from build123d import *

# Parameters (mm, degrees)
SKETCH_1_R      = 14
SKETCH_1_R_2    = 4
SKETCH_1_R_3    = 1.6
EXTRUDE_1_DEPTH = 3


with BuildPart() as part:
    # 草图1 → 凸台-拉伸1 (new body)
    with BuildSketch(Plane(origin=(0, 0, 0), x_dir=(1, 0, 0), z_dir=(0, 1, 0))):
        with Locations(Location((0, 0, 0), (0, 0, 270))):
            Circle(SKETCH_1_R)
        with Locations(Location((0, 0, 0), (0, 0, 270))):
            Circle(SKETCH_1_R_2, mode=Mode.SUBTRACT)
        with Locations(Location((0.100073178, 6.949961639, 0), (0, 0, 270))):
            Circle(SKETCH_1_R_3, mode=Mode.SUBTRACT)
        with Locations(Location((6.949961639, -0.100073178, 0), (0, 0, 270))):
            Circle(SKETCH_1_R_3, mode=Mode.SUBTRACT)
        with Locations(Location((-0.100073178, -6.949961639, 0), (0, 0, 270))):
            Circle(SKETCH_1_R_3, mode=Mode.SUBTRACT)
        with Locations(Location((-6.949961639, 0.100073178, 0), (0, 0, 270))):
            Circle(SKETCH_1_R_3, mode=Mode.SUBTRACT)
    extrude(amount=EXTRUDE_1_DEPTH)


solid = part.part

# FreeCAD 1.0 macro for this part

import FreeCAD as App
import Part
import Sketcher

V = App.Vector

doc = App.newDocument("Part")
body = doc.addObject("PartDesign::Body", "Body")

sketch1 = body.newObject("Sketcher::SketchObject", "Sketch")
sketch1.AttachmentSupport = (doc.getObject("XZ_Plane"), [""])
sketch1.MapMode = "FlatFace"
sketch1.addGeometry([
    Part.Circle(V(0, 0, 0), V(0, 0, 1), 14),
    Part.Circle(V(-6.9, -0.1, 0), V(0, 0, 1), 1.6),
    Part.Circle(V(-0.1, 6.9, 0), V(0, 0, 1), 1.6),
    Part.Circle(V(0.1, -6.9, 0), V(0, 0, 1), 1.6),
    Part.Circle(V(0, 0, 0), V(0, 0, 1), 4),
    Part.Circle(V(6.9, 0.1, 0), V(0, 0, 1), 1.6),
], False)
sketch1.addConstraint([
    Sketcher.Constraint("Coincident", 0, 3, -1, 1),
    Sketcher.Constraint("Coincident", 4, 3, -1, 1),
    Sketcher.Constraint("Equal", 1, 2),
    Sketcher.Constraint("Equal", 2, 3),
    Sketcher.Constraint("Equal", 3, 5),
    Sketcher.Constraint("Symmetric", 2, 3, 3, 3, -1, 1),
    Sketcher.Constraint("Symmetric", 1, 3, 5, 3, -1, 1),
    Sketcher.Constraint("Diameter", 0, 28.0),
    Sketcher.Constraint("Diameter", 4, 8.0),
    Sketcher.Constraint("Diameter", 1, 3.2),
    Sketcher.Constraint("DistanceX", 1, 3, -1, 1, 6.949962),
    Sketcher.Constraint("DistanceY", -1, 1, 2, 3, 6.949962),
    Sketcher.Constraint("DistanceX", 1, 3, 2, 3, 6.849888),
    Sketcher.Constraint("DistanceY", 3, 3, 1, 3, 6.849888),
])
pad1 = body.newObject("PartDesign::Pad", "Pad")
pad1.Profile = sketch1
pad1.Length = 3
pad1.Reversed = True

doc.recompute()
